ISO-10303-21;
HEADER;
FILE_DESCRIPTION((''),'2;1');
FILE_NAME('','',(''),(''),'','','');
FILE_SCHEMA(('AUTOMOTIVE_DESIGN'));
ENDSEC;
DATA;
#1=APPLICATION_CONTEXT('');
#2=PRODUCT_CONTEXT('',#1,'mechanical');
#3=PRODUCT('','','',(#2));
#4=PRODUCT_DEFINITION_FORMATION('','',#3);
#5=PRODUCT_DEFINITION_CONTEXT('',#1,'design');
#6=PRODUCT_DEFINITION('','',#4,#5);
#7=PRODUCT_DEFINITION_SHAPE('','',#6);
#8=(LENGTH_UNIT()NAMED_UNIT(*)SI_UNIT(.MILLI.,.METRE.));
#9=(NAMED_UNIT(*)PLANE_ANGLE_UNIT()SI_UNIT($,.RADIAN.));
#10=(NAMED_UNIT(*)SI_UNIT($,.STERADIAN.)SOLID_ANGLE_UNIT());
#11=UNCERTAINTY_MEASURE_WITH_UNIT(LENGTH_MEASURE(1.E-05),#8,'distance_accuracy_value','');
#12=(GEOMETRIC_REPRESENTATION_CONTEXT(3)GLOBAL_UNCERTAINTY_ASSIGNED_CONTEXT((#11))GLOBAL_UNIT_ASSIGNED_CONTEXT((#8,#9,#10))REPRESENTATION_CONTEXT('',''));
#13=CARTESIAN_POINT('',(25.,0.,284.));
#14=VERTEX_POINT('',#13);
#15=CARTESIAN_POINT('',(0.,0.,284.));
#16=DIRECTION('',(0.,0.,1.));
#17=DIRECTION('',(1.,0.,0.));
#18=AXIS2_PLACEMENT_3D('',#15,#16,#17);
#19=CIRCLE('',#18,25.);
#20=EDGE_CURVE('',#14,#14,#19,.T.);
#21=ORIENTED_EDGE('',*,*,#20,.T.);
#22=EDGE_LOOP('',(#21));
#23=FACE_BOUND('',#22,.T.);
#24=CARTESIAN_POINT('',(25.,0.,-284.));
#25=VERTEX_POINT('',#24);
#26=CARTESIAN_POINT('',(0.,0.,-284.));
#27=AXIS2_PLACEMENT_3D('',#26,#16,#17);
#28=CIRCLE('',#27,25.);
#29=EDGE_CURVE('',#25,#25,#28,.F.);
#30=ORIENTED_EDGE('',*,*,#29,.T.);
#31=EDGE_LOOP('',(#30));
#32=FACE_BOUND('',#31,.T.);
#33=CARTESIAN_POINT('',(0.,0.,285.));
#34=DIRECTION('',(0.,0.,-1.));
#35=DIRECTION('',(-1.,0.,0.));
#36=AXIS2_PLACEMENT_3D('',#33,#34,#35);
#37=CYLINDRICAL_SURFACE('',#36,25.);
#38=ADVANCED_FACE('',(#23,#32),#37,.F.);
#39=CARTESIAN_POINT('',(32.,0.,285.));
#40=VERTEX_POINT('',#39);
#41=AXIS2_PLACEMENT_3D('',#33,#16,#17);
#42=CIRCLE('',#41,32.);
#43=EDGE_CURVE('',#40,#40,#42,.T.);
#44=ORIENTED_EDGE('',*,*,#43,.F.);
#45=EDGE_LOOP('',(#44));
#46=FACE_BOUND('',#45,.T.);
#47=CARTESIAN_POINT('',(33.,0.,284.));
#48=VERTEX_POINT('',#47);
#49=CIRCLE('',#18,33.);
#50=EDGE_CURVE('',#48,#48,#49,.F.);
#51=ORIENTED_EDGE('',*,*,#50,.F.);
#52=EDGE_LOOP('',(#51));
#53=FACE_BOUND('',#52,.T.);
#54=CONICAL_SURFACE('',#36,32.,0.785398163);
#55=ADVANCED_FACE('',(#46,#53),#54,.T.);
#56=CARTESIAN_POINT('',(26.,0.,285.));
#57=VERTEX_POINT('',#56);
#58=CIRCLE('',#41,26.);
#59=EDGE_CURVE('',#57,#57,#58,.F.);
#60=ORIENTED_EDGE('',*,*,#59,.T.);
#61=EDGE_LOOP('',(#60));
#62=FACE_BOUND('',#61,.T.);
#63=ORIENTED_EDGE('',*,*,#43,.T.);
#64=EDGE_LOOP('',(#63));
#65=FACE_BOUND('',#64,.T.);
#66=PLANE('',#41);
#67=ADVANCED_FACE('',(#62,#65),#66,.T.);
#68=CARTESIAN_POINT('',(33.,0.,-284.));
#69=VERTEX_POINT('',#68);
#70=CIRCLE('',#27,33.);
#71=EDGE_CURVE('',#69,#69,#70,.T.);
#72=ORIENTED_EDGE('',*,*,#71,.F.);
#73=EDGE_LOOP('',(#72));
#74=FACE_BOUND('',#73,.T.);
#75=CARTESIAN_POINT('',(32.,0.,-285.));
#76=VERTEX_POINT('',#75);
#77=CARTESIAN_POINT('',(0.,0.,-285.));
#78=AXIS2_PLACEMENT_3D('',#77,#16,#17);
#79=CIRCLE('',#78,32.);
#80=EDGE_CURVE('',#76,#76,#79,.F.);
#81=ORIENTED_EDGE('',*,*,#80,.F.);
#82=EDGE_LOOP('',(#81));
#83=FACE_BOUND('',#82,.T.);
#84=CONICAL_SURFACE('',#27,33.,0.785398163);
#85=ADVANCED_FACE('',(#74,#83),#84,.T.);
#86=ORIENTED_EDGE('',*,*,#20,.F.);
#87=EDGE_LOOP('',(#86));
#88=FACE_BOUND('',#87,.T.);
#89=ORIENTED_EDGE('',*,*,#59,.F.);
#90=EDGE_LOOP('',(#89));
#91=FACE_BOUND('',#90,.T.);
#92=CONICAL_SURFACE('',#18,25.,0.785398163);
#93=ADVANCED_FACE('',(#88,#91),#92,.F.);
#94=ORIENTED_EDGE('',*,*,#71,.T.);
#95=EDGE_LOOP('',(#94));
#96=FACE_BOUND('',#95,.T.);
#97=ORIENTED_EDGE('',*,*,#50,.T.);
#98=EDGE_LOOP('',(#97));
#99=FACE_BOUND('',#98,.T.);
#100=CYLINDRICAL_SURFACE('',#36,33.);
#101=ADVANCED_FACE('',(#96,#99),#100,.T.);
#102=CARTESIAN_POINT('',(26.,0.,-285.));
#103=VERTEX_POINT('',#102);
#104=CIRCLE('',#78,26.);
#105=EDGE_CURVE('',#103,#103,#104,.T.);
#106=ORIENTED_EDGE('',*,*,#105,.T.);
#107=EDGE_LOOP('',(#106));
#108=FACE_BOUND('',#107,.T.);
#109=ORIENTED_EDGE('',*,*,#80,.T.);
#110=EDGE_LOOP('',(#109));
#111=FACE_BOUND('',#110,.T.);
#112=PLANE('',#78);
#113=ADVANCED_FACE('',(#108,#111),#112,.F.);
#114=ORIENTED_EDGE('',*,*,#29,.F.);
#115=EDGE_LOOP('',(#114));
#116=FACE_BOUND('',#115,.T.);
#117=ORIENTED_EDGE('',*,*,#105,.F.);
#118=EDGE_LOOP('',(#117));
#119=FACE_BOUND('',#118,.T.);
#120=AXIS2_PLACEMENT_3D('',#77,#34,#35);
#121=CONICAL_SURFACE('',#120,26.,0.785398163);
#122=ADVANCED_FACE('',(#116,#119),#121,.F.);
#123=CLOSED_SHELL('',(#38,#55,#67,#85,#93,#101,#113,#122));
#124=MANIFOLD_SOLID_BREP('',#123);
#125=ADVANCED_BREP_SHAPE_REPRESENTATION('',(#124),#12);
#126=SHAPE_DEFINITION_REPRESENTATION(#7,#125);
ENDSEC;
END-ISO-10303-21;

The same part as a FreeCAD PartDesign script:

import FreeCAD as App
import Part
import Sketcher

V = App.Vector
Q = App.Units.Quantity


def edges_at(feature, points):
    """Names of the edges that pass closest to the given points."""
    edges = feature.Shape.Edges
    near = lambda p: min(range(len(edges)), key=lambda i: edges[i].distToShape(Part.Vertex(*p))[0])
    return sorted({f"Edge{near(p) + 1}" for p in points})

doc = App.newDocument("Part")
body = doc.addObject("PartDesign::Body", "Body")

# Sketch on XY plane
sketch1 = doc.addObject("Sketcher::SketchObject", "Sketch")
body.addObject(sketch1)
sketch1.AttachmentSupport = (doc.XY_Plane, [""])
sketch1.MapMode = "FlatFace"
sketch1.addGeometry([
    Part.Circle(V(0, 0, 0), V(0, 0, 1), 33),
    Part.Circle(V(0, 0, 0), V(0, 0, 1), 25),
], False)
sketch1.addConstraint([
    Sketcher.Constraint("Coincident", 0, 3, -1, 1),
    Sketcher.Constraint("Coincident", 1, 3, -1, 1),
    Sketcher.Constraint("Diameter", 0, Q("66 mm")),
    Sketcher.Constraint("Diameter", 1, Q("50 mm")),
])
pad1 = doc.addObject("PartDesign::Pad", "Pad")
body.addObject(pad1)
pad1.Profile = sketch1
pad1.Length = 570
pad1.Midplane = True
doc.recompute()

chamfer = doc.addObject("PartDesign::Chamfer", "Chamfer")
body.addObject(chamfer)
chamfer.Base = (pad1, edges_at(pad1, [
    (-33, 0, -285),
    (-33, 0, 285),
    (-25, 0, -285),
    (-25, 0, 285),
]))
chamfer.Size = 1

doc.recompute()
